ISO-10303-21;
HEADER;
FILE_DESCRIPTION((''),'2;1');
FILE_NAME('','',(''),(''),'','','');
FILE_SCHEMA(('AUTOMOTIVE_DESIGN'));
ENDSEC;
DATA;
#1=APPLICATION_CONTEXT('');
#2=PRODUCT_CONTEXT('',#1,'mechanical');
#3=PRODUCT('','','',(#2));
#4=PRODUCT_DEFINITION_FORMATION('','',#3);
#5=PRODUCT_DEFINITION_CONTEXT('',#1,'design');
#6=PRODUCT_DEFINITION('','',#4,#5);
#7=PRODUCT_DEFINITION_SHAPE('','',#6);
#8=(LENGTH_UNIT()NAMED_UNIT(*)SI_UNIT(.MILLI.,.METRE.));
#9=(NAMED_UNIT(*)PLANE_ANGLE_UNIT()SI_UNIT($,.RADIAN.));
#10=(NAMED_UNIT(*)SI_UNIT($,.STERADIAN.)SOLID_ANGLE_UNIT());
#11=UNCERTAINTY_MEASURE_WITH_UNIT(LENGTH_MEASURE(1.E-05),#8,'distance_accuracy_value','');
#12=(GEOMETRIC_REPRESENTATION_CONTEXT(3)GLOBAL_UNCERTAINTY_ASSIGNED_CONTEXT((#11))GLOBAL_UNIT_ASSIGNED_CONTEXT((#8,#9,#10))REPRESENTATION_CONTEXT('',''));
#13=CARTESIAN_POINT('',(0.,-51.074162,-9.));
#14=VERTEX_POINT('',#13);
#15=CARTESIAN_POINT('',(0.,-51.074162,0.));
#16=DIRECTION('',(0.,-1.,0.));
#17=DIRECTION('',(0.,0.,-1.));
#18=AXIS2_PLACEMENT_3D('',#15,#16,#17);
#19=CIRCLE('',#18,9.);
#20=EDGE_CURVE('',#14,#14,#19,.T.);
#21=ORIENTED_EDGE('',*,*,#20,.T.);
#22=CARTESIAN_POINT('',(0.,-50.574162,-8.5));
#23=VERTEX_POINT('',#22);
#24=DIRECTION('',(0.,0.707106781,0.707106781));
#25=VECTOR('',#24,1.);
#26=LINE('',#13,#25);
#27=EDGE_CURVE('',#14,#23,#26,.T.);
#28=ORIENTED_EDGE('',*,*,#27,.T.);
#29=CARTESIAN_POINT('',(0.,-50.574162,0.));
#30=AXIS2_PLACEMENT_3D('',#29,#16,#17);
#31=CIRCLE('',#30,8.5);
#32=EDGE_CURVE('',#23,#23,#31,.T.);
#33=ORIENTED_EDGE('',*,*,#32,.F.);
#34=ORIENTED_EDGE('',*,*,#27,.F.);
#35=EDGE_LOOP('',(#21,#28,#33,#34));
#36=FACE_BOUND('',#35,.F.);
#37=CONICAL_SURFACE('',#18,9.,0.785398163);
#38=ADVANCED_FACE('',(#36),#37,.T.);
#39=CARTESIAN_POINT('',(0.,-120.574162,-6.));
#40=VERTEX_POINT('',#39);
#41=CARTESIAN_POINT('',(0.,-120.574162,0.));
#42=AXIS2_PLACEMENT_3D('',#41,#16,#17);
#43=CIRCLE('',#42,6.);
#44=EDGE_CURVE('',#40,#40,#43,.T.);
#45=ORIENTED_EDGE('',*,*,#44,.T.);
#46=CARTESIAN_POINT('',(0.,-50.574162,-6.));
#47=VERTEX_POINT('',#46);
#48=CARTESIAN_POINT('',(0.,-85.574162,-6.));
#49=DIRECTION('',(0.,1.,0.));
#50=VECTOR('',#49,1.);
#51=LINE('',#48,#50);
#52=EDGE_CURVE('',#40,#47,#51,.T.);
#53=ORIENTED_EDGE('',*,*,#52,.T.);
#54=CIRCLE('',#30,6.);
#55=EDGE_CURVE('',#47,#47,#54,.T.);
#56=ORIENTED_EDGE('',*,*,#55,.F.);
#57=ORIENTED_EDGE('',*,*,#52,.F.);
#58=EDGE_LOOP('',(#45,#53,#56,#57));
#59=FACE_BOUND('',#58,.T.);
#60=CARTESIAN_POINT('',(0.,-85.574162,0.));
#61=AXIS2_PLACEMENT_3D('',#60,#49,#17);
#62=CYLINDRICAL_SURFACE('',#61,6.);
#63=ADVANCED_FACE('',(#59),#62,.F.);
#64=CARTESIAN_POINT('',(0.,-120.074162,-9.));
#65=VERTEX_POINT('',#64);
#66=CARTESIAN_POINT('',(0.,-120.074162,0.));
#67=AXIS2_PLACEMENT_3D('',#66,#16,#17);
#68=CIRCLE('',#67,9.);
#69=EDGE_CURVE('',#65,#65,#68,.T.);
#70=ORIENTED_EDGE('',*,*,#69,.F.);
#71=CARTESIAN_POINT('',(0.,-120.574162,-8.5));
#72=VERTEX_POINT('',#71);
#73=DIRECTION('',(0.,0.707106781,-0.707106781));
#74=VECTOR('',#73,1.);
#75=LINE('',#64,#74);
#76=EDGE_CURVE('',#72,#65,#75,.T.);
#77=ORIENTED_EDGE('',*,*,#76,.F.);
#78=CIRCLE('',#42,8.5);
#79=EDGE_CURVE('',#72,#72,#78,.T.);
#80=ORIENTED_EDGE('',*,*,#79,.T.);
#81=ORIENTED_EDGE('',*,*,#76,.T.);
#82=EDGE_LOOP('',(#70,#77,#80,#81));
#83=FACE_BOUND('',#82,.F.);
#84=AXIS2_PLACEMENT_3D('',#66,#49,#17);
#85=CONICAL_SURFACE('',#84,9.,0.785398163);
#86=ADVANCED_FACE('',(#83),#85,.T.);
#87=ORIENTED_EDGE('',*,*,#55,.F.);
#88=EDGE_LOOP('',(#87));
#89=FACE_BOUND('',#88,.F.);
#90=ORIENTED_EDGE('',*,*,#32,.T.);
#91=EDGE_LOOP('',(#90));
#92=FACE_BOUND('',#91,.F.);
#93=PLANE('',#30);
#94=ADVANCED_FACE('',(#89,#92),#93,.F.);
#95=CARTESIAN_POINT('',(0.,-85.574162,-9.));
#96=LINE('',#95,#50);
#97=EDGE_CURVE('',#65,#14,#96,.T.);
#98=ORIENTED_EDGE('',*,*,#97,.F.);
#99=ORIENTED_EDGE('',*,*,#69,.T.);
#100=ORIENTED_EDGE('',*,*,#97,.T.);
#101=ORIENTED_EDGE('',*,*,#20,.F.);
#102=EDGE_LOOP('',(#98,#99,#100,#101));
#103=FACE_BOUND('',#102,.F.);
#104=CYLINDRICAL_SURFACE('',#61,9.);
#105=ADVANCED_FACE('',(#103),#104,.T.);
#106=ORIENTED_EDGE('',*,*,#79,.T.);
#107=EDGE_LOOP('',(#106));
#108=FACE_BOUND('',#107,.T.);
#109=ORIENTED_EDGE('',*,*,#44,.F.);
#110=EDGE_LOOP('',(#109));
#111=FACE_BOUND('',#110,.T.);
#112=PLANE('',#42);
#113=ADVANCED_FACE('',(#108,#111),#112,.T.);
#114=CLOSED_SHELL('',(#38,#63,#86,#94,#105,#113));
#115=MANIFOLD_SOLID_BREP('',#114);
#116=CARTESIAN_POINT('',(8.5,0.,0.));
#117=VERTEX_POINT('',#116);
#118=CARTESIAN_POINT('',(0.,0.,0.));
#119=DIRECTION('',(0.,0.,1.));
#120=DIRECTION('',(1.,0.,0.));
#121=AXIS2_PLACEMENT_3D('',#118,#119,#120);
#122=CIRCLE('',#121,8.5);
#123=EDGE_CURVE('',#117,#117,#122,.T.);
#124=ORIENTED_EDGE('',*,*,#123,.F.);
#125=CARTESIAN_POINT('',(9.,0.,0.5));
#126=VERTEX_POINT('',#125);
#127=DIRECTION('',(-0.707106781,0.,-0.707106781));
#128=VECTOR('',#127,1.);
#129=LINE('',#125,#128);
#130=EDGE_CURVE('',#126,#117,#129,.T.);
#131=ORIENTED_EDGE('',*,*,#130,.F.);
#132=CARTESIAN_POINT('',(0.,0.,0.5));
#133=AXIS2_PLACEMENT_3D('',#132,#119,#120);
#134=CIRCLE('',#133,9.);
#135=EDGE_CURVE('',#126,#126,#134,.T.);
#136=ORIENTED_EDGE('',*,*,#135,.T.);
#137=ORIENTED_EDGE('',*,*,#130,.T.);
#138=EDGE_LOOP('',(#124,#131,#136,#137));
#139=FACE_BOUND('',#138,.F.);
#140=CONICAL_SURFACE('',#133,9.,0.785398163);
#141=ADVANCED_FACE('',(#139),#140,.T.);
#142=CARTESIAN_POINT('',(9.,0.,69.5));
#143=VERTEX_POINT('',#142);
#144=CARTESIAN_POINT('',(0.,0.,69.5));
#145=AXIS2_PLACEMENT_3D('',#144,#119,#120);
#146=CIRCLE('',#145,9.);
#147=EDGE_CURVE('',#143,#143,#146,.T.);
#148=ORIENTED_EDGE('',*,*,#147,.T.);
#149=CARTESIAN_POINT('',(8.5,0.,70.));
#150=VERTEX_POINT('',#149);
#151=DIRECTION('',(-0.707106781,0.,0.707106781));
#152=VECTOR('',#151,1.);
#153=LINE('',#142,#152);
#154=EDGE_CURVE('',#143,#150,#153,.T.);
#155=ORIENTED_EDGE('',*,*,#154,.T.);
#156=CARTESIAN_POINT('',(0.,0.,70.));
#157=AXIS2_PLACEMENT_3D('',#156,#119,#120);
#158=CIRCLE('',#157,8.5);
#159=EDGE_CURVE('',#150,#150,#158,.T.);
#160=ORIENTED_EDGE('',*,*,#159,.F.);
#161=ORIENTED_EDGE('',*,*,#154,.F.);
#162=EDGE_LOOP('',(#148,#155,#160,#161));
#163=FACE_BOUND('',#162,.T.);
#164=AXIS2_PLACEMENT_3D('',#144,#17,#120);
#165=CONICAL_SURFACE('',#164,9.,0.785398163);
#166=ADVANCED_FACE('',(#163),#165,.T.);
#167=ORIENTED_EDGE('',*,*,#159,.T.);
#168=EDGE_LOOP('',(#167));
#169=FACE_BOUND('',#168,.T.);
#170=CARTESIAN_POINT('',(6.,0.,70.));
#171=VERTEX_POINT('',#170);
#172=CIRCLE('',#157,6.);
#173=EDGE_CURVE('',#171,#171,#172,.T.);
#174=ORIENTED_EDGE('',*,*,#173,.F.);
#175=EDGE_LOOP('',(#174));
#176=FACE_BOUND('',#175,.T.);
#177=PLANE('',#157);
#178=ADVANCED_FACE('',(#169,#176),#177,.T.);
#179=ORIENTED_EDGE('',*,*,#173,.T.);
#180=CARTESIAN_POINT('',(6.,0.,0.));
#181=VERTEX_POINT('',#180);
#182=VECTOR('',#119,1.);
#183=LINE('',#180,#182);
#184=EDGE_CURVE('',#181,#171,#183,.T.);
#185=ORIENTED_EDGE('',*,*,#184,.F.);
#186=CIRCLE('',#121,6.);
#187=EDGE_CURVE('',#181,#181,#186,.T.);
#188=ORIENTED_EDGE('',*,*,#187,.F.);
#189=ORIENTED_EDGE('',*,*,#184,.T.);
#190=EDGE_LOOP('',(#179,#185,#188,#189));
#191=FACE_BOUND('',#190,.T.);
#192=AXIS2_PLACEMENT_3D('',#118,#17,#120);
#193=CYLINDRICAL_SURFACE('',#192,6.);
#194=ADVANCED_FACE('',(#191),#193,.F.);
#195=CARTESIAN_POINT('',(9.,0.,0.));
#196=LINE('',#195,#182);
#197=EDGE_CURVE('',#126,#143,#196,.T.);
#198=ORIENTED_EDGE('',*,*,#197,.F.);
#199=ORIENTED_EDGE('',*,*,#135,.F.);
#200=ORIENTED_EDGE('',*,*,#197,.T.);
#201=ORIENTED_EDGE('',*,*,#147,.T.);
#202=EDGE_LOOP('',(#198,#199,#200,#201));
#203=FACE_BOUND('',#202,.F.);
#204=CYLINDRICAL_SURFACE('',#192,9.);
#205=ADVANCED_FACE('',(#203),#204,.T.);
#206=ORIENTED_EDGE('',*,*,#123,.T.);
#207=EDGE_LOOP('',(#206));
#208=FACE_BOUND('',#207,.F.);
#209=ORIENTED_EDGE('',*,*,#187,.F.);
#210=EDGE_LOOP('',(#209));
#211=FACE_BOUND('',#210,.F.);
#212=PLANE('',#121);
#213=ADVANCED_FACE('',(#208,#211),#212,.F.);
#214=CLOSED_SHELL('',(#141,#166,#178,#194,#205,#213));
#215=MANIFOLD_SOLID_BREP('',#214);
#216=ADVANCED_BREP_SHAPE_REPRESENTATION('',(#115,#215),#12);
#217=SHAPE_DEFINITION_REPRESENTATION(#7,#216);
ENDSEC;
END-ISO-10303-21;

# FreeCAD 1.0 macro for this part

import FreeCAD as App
import Part
import Sketcher


def edges_at(feature, points):
    """Names of the edges that pass closest to the given points."""
    edges = feature.Shape.Edges
    near = lambda p: min(range(len(edges)), key=lambda i: edges[i].distToShape(Part.Vertex(*p))[0])
    return sorted({f"Edge{near(p) + 1}" for p in points})


def add_polygon(sketch, points):
    """Adds a closed chain of lines whose ends are joined by coincident constraints."""
    first, n = sketch.GeometryCount, len(points)
    for a, b in zip(points, points[1:] + points[:1]):
        sketch.addGeometry(Part.LineSegment(App.Vector(*a, 0), App.Vector(*b, 0)), False)
    for i in range(n):
        sketch.addConstraint(Sketcher.Constraint("Coincident", first + i, 2, first + (i + 1) % n, 1))

doc = App.newDocument("Part")
params = doc.addObject("Spreadsheet::Sheet", "Params")
for row, (alias, value) in enumerate([
    ("sketch1_diameter", "18 mm"),
    ("sketch1_diameter2", "12 mm"),
    ("pad1_length", "70 mm"),
    ("chamfer_size", "0.5 mm"),
    ("sketch2_width", "70 mm"),
    ("sketch2_height", "3 mm"),
    ("revolution_angle", "360 deg"),
    ("chamfer2_size", "0.5 mm"),
], start=1):
    params.set(f"A{row}", alias)
    params.set(f"B{row}", "=" + value)
    params.setAlias(f"B{row}", alias)

body = doc.addObject("PartDesign::Body", "Body")

# Sketch on XY plane
sketch1 = body.newObject("Sketcher::SketchObject", "Sketch")
sketch1.AttachmentSupport = (doc.getObject("XY_Plane"), [""])
sketch1.MapMode = "FlatFace"
sketch1.addGeometry([
    Part.Circle(App.Vector(0, 0, 0), App.Vector(0, 0, 1), 9),
    Part.Circle(App.Vector(0, 0, 0), App.Vector(0, 0, 1), 6),
], False)
sketch1.addConstraint([
    Sketcher.Constraint("Coincident", 0, 3, -1, 1),
    Sketcher.Constraint("Coincident", 1, 3, -1, 1),
    Sketcher.Constraint("Diameter", 0, 18.0),
    Sketcher.Constraint("Diameter", 1, 12.0),
])
sketch1.setExpression("Constraints[2]", "Params.sketch1_diameter")
sketch1.setExpression("Constraints[3]", "Params.sketch1_diameter2")
pad1 = body.newObject("PartDesign::Pad", "Pad")
pad1.Profile = sketch1
pad1.setExpression("Length", "Params.pad1_length")
doc.recompute()

chamfer = body.newObject("PartDesign::Chamfer", "Chamfer")
chamfer.Base = (pad1, edges_at(pad1, [(-9, 0, 70), (-9, 0, 0)]))
chamfer.setExpression("Size", "Params.chamfer_size")
body2 = doc.addObject("PartDesign::Body", "Body001")

# Sketch on YZ plane
sketch2 = body2.newObject("Sketcher::SketchObject", "Sketch001")
sketch2.AttachmentSupport = (doc.getObject("YZ_Plane001"), [""])
sketch2.MapMode = "FlatFace"
add_polygon(sketch2, [(-120.6, -6), (-120.6, -9), (-50.6, -9), (-50.6, -6)])  # lines 0-3
sketch2.addConstraint([
    Sketcher.Constraint("Vertical", 0),
    Sketcher.Constraint("Horizontal", 1),
    Sketcher.Constraint("Vertical", 2),
    Sketcher.Constraint("Horizontal", 3),
    Sketcher.Constraint("DistanceX", 1, 1, 1, 2, 70.0),
    Sketcher.Constraint("DistanceY", 0, 2, 0, 1, 3.0),
    Sketcher.Constraint("DistanceY", 0, 2, -1, 1, 9.0),
    Sketcher.Constraint("DistanceX", 0, 2, -1, 1, 120.574162),
])
sketch2.setExpression("Constraints[8]", "Params.sketch2_width")
sketch2.setExpression("Constraints[9]", "Params.sketch2_height")
revolution = body2.newObject("PartDesign::Revolution", "Revolution")
revolution.Profile = sketch2
revolution.ReferenceAxis = (sketch2, ["H_Axis"])
revolution.setExpression("Angle", "Params.revolution_angle")
doc.recompute()

chamfer2 = body2.newObject("PartDesign::Chamfer", "Chamfer001")
chamfer2.Base = (revolution, edges_at(revolution, [(0, -120.574, 9), (0, -50.574, 9)]))
chamfer2.setExpression("Size", "Params.chamfer2_size")

doc.recompute()
